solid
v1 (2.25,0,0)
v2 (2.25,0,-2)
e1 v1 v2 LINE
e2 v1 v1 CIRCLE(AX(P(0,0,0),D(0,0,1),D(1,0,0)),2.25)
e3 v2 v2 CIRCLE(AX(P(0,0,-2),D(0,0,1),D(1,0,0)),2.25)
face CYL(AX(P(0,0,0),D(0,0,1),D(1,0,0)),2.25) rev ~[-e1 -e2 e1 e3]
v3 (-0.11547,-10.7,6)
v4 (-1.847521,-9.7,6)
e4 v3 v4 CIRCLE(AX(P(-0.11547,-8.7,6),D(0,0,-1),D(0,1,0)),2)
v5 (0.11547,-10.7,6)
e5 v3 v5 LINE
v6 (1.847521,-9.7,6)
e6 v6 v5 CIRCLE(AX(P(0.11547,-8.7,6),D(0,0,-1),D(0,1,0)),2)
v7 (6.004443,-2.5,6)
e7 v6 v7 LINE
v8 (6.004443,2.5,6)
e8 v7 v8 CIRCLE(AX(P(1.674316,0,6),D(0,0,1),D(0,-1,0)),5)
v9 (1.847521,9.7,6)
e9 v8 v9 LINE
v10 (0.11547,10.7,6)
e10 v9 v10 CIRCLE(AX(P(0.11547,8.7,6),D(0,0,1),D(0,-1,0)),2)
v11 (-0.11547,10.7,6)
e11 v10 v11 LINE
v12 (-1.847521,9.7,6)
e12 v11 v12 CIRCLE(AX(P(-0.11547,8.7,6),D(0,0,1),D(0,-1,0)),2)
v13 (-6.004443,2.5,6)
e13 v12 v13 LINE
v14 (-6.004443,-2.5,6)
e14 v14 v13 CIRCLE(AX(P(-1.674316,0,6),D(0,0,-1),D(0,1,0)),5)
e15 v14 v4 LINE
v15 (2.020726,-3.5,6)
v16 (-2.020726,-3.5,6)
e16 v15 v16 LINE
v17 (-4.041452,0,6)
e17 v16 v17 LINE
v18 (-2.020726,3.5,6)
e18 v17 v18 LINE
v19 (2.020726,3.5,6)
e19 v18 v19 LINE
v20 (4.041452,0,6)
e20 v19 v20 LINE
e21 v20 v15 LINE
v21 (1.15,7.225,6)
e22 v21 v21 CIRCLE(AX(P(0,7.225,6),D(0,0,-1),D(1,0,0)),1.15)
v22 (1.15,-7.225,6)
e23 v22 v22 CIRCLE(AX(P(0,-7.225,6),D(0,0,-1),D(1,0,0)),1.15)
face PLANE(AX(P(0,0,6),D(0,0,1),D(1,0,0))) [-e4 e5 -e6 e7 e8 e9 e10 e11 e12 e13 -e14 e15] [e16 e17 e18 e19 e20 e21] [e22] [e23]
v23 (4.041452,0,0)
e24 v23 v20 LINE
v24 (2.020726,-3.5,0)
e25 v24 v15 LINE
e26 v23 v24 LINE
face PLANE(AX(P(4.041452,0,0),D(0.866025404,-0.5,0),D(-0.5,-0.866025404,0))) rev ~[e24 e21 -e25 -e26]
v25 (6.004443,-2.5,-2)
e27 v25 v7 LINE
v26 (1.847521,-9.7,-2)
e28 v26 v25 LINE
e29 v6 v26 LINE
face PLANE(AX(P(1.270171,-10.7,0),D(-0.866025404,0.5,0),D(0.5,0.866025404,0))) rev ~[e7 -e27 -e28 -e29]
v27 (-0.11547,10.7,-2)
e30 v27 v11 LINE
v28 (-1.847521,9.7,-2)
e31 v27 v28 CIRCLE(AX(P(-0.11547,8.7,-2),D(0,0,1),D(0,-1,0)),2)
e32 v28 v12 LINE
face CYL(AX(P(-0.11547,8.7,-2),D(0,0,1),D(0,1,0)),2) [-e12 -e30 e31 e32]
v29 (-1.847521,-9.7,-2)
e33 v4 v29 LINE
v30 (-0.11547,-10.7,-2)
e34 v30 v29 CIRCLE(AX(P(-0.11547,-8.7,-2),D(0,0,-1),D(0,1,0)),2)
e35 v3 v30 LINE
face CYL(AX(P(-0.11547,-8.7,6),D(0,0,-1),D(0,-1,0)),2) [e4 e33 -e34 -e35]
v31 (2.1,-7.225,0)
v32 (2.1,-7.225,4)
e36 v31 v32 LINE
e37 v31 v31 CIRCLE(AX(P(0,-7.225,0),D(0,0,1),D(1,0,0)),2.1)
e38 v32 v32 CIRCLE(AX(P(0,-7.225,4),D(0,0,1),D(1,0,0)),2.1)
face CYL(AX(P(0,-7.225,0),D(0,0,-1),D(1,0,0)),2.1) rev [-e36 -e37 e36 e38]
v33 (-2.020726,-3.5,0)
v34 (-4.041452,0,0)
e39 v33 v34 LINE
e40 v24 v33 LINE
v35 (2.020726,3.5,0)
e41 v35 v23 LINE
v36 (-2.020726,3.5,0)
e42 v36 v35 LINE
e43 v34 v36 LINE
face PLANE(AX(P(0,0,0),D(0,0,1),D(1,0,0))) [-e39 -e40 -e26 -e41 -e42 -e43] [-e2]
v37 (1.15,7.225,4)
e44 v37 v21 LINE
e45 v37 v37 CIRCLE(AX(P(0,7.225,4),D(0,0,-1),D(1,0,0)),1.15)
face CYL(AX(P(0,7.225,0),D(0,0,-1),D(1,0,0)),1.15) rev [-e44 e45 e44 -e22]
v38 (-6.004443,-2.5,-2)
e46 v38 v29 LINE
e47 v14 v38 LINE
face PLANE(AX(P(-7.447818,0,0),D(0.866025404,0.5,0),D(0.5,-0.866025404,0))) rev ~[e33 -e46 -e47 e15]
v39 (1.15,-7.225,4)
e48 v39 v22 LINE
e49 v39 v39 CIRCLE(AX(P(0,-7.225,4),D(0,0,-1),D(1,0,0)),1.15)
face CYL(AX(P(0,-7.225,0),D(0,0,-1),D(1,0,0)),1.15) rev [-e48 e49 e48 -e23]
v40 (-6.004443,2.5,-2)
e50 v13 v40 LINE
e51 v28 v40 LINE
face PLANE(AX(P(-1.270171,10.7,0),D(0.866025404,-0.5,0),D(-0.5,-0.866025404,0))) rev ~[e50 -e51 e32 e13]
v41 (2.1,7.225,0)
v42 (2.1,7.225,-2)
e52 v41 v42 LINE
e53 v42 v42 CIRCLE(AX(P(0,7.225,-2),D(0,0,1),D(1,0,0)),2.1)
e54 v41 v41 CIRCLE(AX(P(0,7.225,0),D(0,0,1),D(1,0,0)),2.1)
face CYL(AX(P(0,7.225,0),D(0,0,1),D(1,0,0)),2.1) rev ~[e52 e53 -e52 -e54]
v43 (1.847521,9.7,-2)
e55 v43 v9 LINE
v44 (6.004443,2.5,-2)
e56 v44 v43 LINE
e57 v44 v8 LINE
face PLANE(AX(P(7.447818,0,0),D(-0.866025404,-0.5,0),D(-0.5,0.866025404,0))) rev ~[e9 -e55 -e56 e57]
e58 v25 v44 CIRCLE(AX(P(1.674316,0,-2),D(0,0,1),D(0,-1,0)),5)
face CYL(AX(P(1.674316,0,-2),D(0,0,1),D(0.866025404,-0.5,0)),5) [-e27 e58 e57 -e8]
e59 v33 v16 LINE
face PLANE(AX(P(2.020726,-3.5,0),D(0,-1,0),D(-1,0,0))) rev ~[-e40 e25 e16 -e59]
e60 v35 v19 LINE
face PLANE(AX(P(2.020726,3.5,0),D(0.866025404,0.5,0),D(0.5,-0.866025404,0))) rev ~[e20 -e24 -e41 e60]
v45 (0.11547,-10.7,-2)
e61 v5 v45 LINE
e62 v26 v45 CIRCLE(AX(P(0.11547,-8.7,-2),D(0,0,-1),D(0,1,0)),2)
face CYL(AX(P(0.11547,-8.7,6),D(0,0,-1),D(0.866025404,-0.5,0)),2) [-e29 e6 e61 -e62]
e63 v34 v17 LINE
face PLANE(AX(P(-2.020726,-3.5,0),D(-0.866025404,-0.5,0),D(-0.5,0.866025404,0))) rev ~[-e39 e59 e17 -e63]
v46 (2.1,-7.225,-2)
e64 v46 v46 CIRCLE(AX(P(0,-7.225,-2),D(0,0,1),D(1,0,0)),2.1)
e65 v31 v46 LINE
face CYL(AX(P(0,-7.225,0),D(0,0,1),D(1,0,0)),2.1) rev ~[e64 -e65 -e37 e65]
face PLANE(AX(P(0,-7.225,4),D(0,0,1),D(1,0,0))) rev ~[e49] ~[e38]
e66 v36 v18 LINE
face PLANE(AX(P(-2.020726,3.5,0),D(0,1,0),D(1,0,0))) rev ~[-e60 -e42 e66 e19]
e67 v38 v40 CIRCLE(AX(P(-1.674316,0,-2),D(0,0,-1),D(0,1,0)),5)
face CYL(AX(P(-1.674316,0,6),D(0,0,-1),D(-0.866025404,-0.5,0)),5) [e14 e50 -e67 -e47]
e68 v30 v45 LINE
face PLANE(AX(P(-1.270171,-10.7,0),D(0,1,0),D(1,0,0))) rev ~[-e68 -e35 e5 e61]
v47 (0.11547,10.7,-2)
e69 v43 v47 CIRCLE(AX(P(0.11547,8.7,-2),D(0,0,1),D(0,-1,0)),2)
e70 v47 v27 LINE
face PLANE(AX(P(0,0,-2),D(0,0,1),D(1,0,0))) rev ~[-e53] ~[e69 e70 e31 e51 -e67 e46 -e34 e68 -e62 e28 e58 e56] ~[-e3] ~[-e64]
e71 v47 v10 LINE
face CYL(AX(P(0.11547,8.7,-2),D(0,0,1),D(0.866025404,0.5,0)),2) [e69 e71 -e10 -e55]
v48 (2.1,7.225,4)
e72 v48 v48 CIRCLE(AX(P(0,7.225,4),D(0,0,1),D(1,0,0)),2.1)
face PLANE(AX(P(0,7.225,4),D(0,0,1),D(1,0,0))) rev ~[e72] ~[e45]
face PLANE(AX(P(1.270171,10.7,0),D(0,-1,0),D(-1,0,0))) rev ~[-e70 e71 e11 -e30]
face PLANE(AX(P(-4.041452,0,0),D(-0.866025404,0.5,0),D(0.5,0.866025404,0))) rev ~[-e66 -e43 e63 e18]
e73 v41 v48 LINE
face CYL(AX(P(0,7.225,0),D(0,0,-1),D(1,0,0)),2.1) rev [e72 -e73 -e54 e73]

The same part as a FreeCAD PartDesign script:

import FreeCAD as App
import Part
import Sketcher
Q = App.Units.Quantity


def edges_at(feature, points):
    """Names of the edges that pass closest to the given points."""
    edges = feature.Shape.Edges
    near = lambda p: min(range(len(edges)), key=lambda i: edges[i].distToShape(Part.Vertex(*p))[0])
    return sorted({f"Edge{near(p) + 1}" for p in points})

doc = App.newDocument("Part")
params = doc.addObject("Spreadsheet::Sheet", "Params")
for row, (alias, value) in enumerate([
    ("pad1_length", "2 mm"),
    ("pad2_length", "6 mm"),
    ("sketch3_diameter", "2.3 mm"),
    ("sketch4_diameter", "4.2 mm"),
    ("pocket2_length", "2.001 mm"),
    ("pocket2_length2", "4 mm"),
    ("sketch5_diameter", "4.5 mm"),
    ("fillet_radius", "5 mm"),
    ("fillet2_radius", "2 mm"),
], start=1):
    params.set(f"A{row}", alias)
    params.set(f"B{row}", "=" + value)
    params.setAlias(f"B{row}", alias)

body = doc.addObject("PartDesign::Body", "Body")

# Sketch on XY plane
sketch1 = body.newObject("Sketcher::SketchObject", "Sketch")
sketch1.AttachmentSupport = (doc.getObject("XY_Plane"), [""])
sketch1.MapMode = "FlatFace"
sketch1.addGeometry(Part.LineSegment(App.Vector(1.3, 10.7, 0), App.Vector(-1.3, 10.7, 0)), False)
sketch1.addGeometry(Part.LineSegment(App.Vector(-1.3, 10.7, 0), App.Vector(-7.4, 0, 0)), False)
sketch1.addGeometry(Part.LineSegment(App.Vector(-7.4, 0, 0), App.Vector(-1.3, -10.7, 0)), False)
sketch1.addGeometry(Part.LineSegment(App.Vector(-1.3, -10.7, 0), App.Vector(1.3, -10.7, 0)), False)
sketch1.addGeometry(Part.LineSegment(App.Vector(1.3, -10.7, 0), App.Vector(7.4, 0, 0)), False)
sketch1.addGeometry(Part.LineSegment(App.Vector(7.4, 0, 0), App.Vector(1.3, 10.7, 0)), False)
sketch1.addConstraint(Sketcher.Constraint("Coincident", 0, 2, 1, 1))
sketch1.addConstraint(Sketcher.Constraint("Coincident", 1, 2, 2, 1))
sketch1.addConstraint(Sketcher.Constraint("Coincident", 2, 2, 3, 1))
sketch1.addConstraint(Sketcher.Constraint("Coincident", 3, 2, 4, 1))
sketch1.addConstraint(Sketcher.Constraint("Coincident", 4, 2, 5, 1))
sketch1.addConstraint(Sketcher.Constraint("Coincident", 5, 2, 0, 1))
sketch1.addConstraint(Sketcher.Constraint("Horizontal", 0))
sketch1.addConstraint(Sketcher.Constraint("Horizontal", 3))
sketch1.addConstraint(Sketcher.Constraint("Symmetric", 0, 2, 3, 2, -1, 1))
sketch1.addConstraint(Sketcher.Constraint("Symmetric", 1, 2, 4, 2, -1, 1))
sketch1.addConstraint(Sketcher.Constraint("PointOnObject", 1, 2, -1))
sketch1.addConstraint(Sketcher.Constraint("Parallel", 2, 5))
sketch1.addConstraint(Sketcher.Constraint("Vertical", 0, 2, 2, 2))
sketch1.addConstraint(Sketcher.Constraint("Angle", 1, Q("-120 deg")))
sketch1.addConstraint(Sketcher.Constraint("DistanceY", -1, 1, 0, 2, Q("10.7 mm")))
sketch1.addConstraint(Sketcher.Constraint("DistanceX", 0, 2, 0, 1, Q("2.540341 mm")))
pad1 = body.newObject("PartDesign::Pad", "Pad")
pad1.Profile = sketch1
pad1.setExpression("Length", "Params.pad1_length")
pad1.Reversed = True

# Sketch on XY plane
sketch2 = body.newObject("Sketcher::SketchObject", "Sketch001")
sketch2.AttachmentSupport = (doc.getObject("XY_Plane"), [""])
sketch2.MapMode = "FlatFace"
sketch2.addGeometry(Part.LineSegment(App.Vector(1.3, -10.7, 0), App.Vector(7.4, 0, 0)), False)
sketch2.addGeometry(Part.LineSegment(App.Vector(7.4, 0, 0), App.Vector(1.3, 10.7, 0)), False)
sketch2.addGeometry(Part.LineSegment(App.Vector(1.3, 10.7, 0), App.Vector(-1.3, 10.7, 0)), False)
sketch2.addGeometry(Part.LineSegment(App.Vector(-1.3, 10.7, 0), App.Vector(-7.4, 0, 0)), False)
sketch2.addGeometry(Part.LineSegment(App.Vector(-7.4, 0, 0), App.Vector(-1.3, -10.7, 0)), False)
sketch2.addGeometry(Part.LineSegment(App.Vector(-1.3, -10.7, 0), App.Vector(1.3, -10.7, 0)), False)
sketch2.addGeometry(Part.LineSegment(App.Vector(-2, 3.5, 0), App.Vector(2, 3.5, 0)), False)
sketch2.addGeometry(Part.LineSegment(App.Vector(2, 3.5, 0), App.Vector(4, 0, 0)), False)
sketch2.addGeometry(Part.LineSegment(App.Vector(4, 0, 0), App.Vector(2, -3.5, 0)), False)
sketch2.addGeometry(Part.LineSegment(App.Vector(2, -3.5, 0), App.Vector(-2, -3.5, 0)), False)
sketch2.addGeometry(Part.LineSegment(App.Vector(-2, -3.5, 0), App.Vector(-4, 0, 0)), False)
sketch2.addGeometry(Part.LineSegment(App.Vector(-4, 0, 0), App.Vector(-2, 3.5, 0)), False)
sketch2.addConstraint(Sketcher.Constraint("Coincident", 0, 2, 1, 1))
sketch2.addConstraint(Sketcher.Constraint("Coincident", 1, 2, 2, 1))
sketch2.addConstraint(Sketcher.Constraint("Coincident", 2, 2, 3, 1))
sketch2.addConstraint(Sketcher.Constraint("Coincident", 3, 2, 4, 1))
sketch2.addConstraint(Sketcher.Constraint("Coincident", 4, 2, 5, 1))
sketch2.addConstraint(Sketcher.Constraint("Coincident", 5, 2, 0, 1))
sketch2.addConstraint(Sketcher.Constraint("Coincident", 6, 2, 7, 1))
sketch2.addConstraint(Sketcher.Constraint("Coincident", 7, 2, 8, 1))
sketch2.addConstraint(Sketcher.Constraint("Coincident", 8, 2, 9, 1))
sketch2.addConstraint(Sketcher.Constraint("Coincident", 9, 2, 10, 1))
sketch2.addConstraint(Sketcher.Constraint("Coincident", 10, 2, 11, 1))
sketch2.addConstraint(Sketcher.Constraint("Coincident", 11, 2, 6, 1))
sketch2.addConstraint(Sketcher.Constraint("Horizontal", 2))
sketch2.addConstraint(Sketcher.Constraint("Horizontal", 5))
sketch2.addConstraint(Sketcher.Constraint("Horizontal", 6))
sketch2.addConstraint(Sketcher.Constraint("Horizontal", 9))
sketch2.addConstraint(Sketcher.Constraint("Symmetric", 0, 2, 3, 2, -1, 1))
sketch2.addConstraint(Sketcher.Constraint("Symmetric", 1, 2, 4, 2, -1, 1))
sketch2.addConstraint(Sketcher.Constraint("Symmetric", 6, 2, 9, 2, -1, 1))
sketch2.addConstraint(Sketcher.Constraint("Symmetric", 7, 2, 10, 2, -1, 1))
sketch2.addConstraint(Sketcher.Constraint("PointOnObject", 0, 2, -1))
sketch2.addConstraint(Sketcher.Constraint("PointOnObject", 7, 2, -1))
sketch2.addConstraint(Sketcher.Constraint("Parallel", 0, 3))
sketch2.addConstraint(Sketcher.Constraint("Parallel", 4, 7))
sketch2.addConstraint(Sketcher.Constraint("Parallel", 3, 8))
sketch2.addConstraint(Sketcher.Constraint("Parallel", 8, 11))
sketch2.addConstraint(Sketcher.Constraint("Vertical", 2, 2, 4, 2))
sketch2.addConstraint(Sketcher.Constraint("Angle", 0, Q("60 deg")))
sketch2.addConstraint(Sketcher.Constraint("DistanceY", 8, 2, 6, 2, Q("7 mm")))
sketch2.addConstraint(Sketcher.Constraint("DistanceY", -1, 1, 1, 2, Q("10.7 mm")))
sketch2.addConstraint(Sketcher.Constraint("DistanceX", 2, 2, 2, 1, Q("2.540341 mm")))
sketch2.addConstraint(Sketcher.Constraint("DistanceX", 6, 1, 6, 2, Q("4.041452 mm")))
pad2 = body.newObject("PartDesign::Pad", "Pad001")
pad2.Profile = sketch2
pad2.setExpression("Length", "Params.pad2_length")

# Sketch on XY plane
sketch3 = body.newObject("Sketcher::SketchObject", "Sketch002")
sketch3.AttachmentSupport = (doc.getObject("XY_Plane"), [""])
sketch3.MapMode = "FlatFace"
sketch3.addGeometry(Part.Circle(App.Vector(0, 7.2, 0), App.Vector(0, 0, 1), 1.1), False)
sketch3.addGeometry(Part.Circle(App.Vector(0, -7.2, 0), App.Vector(0, 0, 1), 1.1), False)
sketch3.addConstraint(Sketcher.Constraint("Equal", 0, 1))
sketch3.addConstraint(Sketcher.Constraint("Symmetric", 0, 3, 1, 3, -1, 1))
sketch3.addConstraint(Sketcher.Constraint("PointOnObject", 0, 3, -2))
sketch3.addConstraint(Sketcher.Constraint("Diameter", 0, Q("2.3 mm")))
sketch3.addConstraint(Sketcher.Constraint("DistanceY", 1, 3, 0, 3, Q("14.45 mm")))
sketch3.setExpression("Constraints[3]", "Params.sketch3_diameter")
pocket1 = body.newObject("PartDesign::Pocket", "Pocket")
pocket1.Profile = sketch3
pocket1.Type = "ThroughAll"
pocket1.Midplane = True

# Sketch on XY plane
sketch4 = body.newObject("Sketcher::SketchObject", "Sketch003")
sketch4.AttachmentSupport = (doc.getObject("XY_Plane"), [""])
sketch4.MapMode = "FlatFace"
sketch4.addGeometry(Part.Circle(App.Vector(0, 7.2, 0), App.Vector(0, 0, 1), 2.1), False)
sketch4.addGeometry(Part.Circle(App.Vector(0, -7.2, 0), App.Vector(0, 0, 1), 2.1), False)
sketch4.addConstraint(Sketcher.Constraint("Equal", 0, 1))
sketch4.addConstraint(Sketcher.Constraint("Symmetric", 0, 3, 1, 3, -1, 1))
sketch4.addConstraint(Sketcher.Constraint("PointOnObject", 0, 3, -2))
sketch4.addConstraint(Sketcher.Constraint("Diameter", 0, Q("4.2 mm")))
sketch4.addConstraint(Sketcher.Constraint("DistanceY", 1, 3, 0, 3, Q("14.45 mm")))
sketch4.setExpression("Constraints[3]", "Params.sketch4_diameter")
pocket2 = body.newObject("PartDesign::Pocket", "Pocket001")
pocket2.Profile = sketch4
pocket2.Type = "TwoLengths"
pocket2.setExpression("Length", "Params.pocket2_length")
pocket2.setExpression("Length2", "Params.pocket2_length2")

# Sketch on XY plane
sketch5 = body.newObject("Sketcher::SketchObject", "Sketch004")
sketch5.AttachmentSupport = (doc.getObject("XY_Plane"), [""])
sketch5.MapMode = "FlatFace"
sketch5.addGeometry(Part.Circle(App.Vector(0, 0, 0), App.Vector(0, 0, 1), 2.2), False)
sketch5.addConstraint(Sketcher.Constraint("Coincident", 0, 3, -1, 1))
sketch5.addConstraint(Sketcher.Constraint("Diameter", 0, Q("4.5 mm")))
sketch5.setExpression("Constraints[1]", "Params.sketch5_diameter")
pocket3 = body.newObject("PartDesign::Pocket", "Pocket002")
pocket3.Profile = sketch5
pocket3.Type = "ThroughAll"
doc.recompute()

fillet = body.newObject("PartDesign::Fillet", "Fillet")
fillet.Base = (pocket3, edges_at(pocket3, [(7.448, 0, 2), (-7.448, 0, 2)]))
fillet.setExpression("Radius", "Params.fillet_radius")
doc.recompute()

fillet2 = body.newObject("PartDesign::Fillet", "Fillet001")
fillet2.Base = (fillet, edges_at(fillet, [
    (1.27, -10.7, 2),
    (-1.27, -10.7, 2),
    (-1.27, 10.7, 2),
    (1.27, 10.7, 2),
]))
fillet2.setExpression("Radius", "Params.fillet2_radius")

doc.recompute()
